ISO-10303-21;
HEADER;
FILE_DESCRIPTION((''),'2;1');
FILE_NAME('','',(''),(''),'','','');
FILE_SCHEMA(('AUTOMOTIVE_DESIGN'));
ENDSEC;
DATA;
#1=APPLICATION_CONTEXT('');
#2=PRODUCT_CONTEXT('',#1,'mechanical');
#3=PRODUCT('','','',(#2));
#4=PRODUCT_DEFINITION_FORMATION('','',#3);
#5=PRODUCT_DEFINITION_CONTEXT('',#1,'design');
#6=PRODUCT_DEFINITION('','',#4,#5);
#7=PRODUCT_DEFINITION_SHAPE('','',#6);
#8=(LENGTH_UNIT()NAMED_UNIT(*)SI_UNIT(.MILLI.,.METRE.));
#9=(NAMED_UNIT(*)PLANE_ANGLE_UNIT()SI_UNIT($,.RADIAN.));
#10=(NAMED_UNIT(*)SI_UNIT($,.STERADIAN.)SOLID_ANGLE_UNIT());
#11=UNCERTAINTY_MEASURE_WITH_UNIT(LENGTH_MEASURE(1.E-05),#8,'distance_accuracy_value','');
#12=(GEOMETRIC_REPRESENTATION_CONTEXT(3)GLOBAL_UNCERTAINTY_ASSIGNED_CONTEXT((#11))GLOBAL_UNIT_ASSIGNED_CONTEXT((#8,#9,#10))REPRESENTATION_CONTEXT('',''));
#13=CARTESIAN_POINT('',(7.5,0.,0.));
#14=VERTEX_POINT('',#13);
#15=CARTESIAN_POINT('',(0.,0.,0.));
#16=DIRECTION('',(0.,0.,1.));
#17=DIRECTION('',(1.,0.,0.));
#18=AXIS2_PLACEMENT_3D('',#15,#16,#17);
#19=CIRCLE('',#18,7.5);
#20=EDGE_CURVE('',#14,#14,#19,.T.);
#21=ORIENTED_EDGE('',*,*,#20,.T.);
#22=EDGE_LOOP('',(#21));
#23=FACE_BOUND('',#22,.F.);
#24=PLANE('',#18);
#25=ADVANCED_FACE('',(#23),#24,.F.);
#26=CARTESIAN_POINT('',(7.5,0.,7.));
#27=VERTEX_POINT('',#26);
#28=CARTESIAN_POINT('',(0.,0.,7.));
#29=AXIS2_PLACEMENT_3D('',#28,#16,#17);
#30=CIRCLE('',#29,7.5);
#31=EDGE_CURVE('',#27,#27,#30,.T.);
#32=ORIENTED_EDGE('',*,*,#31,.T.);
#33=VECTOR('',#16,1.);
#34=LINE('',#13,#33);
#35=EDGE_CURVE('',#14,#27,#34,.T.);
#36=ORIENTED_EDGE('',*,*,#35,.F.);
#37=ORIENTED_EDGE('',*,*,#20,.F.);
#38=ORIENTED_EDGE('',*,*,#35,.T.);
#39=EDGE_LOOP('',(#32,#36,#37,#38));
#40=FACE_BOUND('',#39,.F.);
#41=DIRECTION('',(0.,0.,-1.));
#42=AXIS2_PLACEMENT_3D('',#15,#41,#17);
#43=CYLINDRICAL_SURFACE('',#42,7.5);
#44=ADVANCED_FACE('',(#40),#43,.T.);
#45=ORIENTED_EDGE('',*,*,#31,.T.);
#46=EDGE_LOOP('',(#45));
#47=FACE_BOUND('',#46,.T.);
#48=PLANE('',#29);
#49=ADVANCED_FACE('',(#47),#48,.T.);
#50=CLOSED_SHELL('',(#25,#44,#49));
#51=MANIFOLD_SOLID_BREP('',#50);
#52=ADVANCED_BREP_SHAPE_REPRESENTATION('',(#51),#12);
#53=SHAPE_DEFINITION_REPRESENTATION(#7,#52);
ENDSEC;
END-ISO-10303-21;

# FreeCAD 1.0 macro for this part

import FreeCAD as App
import Part
import Sketcher

V = App.Vector
Q = App.Units.Quantity

doc = App.newDocument("Part")
body = doc.addObject("PartDesign::Body", "Body")

sketch1 = body.newObject("Sketcher::SketchObject", "Sketch")
sketch1.AttachmentSupport = (doc.getObject("XY_Plane"), [""])
sketch1.MapMode = "FlatFace"
sketch1.addGeometry(Part.Circle(V(0, 0, 0), V(0, 0, 1), 8), False)
sketch1.addConstraint(Sketcher.Constraint("Coincident", 0, 3, -1, 1))
sketch1.addConstraint(Sketcher.Constraint("Diameter", 0, Q("15 mm")))
pad1 = body.newObject("PartDesign::Pad", "Pad")
pad1.Profile = sketch1
pad1.Length = 7

doc.recompute()
